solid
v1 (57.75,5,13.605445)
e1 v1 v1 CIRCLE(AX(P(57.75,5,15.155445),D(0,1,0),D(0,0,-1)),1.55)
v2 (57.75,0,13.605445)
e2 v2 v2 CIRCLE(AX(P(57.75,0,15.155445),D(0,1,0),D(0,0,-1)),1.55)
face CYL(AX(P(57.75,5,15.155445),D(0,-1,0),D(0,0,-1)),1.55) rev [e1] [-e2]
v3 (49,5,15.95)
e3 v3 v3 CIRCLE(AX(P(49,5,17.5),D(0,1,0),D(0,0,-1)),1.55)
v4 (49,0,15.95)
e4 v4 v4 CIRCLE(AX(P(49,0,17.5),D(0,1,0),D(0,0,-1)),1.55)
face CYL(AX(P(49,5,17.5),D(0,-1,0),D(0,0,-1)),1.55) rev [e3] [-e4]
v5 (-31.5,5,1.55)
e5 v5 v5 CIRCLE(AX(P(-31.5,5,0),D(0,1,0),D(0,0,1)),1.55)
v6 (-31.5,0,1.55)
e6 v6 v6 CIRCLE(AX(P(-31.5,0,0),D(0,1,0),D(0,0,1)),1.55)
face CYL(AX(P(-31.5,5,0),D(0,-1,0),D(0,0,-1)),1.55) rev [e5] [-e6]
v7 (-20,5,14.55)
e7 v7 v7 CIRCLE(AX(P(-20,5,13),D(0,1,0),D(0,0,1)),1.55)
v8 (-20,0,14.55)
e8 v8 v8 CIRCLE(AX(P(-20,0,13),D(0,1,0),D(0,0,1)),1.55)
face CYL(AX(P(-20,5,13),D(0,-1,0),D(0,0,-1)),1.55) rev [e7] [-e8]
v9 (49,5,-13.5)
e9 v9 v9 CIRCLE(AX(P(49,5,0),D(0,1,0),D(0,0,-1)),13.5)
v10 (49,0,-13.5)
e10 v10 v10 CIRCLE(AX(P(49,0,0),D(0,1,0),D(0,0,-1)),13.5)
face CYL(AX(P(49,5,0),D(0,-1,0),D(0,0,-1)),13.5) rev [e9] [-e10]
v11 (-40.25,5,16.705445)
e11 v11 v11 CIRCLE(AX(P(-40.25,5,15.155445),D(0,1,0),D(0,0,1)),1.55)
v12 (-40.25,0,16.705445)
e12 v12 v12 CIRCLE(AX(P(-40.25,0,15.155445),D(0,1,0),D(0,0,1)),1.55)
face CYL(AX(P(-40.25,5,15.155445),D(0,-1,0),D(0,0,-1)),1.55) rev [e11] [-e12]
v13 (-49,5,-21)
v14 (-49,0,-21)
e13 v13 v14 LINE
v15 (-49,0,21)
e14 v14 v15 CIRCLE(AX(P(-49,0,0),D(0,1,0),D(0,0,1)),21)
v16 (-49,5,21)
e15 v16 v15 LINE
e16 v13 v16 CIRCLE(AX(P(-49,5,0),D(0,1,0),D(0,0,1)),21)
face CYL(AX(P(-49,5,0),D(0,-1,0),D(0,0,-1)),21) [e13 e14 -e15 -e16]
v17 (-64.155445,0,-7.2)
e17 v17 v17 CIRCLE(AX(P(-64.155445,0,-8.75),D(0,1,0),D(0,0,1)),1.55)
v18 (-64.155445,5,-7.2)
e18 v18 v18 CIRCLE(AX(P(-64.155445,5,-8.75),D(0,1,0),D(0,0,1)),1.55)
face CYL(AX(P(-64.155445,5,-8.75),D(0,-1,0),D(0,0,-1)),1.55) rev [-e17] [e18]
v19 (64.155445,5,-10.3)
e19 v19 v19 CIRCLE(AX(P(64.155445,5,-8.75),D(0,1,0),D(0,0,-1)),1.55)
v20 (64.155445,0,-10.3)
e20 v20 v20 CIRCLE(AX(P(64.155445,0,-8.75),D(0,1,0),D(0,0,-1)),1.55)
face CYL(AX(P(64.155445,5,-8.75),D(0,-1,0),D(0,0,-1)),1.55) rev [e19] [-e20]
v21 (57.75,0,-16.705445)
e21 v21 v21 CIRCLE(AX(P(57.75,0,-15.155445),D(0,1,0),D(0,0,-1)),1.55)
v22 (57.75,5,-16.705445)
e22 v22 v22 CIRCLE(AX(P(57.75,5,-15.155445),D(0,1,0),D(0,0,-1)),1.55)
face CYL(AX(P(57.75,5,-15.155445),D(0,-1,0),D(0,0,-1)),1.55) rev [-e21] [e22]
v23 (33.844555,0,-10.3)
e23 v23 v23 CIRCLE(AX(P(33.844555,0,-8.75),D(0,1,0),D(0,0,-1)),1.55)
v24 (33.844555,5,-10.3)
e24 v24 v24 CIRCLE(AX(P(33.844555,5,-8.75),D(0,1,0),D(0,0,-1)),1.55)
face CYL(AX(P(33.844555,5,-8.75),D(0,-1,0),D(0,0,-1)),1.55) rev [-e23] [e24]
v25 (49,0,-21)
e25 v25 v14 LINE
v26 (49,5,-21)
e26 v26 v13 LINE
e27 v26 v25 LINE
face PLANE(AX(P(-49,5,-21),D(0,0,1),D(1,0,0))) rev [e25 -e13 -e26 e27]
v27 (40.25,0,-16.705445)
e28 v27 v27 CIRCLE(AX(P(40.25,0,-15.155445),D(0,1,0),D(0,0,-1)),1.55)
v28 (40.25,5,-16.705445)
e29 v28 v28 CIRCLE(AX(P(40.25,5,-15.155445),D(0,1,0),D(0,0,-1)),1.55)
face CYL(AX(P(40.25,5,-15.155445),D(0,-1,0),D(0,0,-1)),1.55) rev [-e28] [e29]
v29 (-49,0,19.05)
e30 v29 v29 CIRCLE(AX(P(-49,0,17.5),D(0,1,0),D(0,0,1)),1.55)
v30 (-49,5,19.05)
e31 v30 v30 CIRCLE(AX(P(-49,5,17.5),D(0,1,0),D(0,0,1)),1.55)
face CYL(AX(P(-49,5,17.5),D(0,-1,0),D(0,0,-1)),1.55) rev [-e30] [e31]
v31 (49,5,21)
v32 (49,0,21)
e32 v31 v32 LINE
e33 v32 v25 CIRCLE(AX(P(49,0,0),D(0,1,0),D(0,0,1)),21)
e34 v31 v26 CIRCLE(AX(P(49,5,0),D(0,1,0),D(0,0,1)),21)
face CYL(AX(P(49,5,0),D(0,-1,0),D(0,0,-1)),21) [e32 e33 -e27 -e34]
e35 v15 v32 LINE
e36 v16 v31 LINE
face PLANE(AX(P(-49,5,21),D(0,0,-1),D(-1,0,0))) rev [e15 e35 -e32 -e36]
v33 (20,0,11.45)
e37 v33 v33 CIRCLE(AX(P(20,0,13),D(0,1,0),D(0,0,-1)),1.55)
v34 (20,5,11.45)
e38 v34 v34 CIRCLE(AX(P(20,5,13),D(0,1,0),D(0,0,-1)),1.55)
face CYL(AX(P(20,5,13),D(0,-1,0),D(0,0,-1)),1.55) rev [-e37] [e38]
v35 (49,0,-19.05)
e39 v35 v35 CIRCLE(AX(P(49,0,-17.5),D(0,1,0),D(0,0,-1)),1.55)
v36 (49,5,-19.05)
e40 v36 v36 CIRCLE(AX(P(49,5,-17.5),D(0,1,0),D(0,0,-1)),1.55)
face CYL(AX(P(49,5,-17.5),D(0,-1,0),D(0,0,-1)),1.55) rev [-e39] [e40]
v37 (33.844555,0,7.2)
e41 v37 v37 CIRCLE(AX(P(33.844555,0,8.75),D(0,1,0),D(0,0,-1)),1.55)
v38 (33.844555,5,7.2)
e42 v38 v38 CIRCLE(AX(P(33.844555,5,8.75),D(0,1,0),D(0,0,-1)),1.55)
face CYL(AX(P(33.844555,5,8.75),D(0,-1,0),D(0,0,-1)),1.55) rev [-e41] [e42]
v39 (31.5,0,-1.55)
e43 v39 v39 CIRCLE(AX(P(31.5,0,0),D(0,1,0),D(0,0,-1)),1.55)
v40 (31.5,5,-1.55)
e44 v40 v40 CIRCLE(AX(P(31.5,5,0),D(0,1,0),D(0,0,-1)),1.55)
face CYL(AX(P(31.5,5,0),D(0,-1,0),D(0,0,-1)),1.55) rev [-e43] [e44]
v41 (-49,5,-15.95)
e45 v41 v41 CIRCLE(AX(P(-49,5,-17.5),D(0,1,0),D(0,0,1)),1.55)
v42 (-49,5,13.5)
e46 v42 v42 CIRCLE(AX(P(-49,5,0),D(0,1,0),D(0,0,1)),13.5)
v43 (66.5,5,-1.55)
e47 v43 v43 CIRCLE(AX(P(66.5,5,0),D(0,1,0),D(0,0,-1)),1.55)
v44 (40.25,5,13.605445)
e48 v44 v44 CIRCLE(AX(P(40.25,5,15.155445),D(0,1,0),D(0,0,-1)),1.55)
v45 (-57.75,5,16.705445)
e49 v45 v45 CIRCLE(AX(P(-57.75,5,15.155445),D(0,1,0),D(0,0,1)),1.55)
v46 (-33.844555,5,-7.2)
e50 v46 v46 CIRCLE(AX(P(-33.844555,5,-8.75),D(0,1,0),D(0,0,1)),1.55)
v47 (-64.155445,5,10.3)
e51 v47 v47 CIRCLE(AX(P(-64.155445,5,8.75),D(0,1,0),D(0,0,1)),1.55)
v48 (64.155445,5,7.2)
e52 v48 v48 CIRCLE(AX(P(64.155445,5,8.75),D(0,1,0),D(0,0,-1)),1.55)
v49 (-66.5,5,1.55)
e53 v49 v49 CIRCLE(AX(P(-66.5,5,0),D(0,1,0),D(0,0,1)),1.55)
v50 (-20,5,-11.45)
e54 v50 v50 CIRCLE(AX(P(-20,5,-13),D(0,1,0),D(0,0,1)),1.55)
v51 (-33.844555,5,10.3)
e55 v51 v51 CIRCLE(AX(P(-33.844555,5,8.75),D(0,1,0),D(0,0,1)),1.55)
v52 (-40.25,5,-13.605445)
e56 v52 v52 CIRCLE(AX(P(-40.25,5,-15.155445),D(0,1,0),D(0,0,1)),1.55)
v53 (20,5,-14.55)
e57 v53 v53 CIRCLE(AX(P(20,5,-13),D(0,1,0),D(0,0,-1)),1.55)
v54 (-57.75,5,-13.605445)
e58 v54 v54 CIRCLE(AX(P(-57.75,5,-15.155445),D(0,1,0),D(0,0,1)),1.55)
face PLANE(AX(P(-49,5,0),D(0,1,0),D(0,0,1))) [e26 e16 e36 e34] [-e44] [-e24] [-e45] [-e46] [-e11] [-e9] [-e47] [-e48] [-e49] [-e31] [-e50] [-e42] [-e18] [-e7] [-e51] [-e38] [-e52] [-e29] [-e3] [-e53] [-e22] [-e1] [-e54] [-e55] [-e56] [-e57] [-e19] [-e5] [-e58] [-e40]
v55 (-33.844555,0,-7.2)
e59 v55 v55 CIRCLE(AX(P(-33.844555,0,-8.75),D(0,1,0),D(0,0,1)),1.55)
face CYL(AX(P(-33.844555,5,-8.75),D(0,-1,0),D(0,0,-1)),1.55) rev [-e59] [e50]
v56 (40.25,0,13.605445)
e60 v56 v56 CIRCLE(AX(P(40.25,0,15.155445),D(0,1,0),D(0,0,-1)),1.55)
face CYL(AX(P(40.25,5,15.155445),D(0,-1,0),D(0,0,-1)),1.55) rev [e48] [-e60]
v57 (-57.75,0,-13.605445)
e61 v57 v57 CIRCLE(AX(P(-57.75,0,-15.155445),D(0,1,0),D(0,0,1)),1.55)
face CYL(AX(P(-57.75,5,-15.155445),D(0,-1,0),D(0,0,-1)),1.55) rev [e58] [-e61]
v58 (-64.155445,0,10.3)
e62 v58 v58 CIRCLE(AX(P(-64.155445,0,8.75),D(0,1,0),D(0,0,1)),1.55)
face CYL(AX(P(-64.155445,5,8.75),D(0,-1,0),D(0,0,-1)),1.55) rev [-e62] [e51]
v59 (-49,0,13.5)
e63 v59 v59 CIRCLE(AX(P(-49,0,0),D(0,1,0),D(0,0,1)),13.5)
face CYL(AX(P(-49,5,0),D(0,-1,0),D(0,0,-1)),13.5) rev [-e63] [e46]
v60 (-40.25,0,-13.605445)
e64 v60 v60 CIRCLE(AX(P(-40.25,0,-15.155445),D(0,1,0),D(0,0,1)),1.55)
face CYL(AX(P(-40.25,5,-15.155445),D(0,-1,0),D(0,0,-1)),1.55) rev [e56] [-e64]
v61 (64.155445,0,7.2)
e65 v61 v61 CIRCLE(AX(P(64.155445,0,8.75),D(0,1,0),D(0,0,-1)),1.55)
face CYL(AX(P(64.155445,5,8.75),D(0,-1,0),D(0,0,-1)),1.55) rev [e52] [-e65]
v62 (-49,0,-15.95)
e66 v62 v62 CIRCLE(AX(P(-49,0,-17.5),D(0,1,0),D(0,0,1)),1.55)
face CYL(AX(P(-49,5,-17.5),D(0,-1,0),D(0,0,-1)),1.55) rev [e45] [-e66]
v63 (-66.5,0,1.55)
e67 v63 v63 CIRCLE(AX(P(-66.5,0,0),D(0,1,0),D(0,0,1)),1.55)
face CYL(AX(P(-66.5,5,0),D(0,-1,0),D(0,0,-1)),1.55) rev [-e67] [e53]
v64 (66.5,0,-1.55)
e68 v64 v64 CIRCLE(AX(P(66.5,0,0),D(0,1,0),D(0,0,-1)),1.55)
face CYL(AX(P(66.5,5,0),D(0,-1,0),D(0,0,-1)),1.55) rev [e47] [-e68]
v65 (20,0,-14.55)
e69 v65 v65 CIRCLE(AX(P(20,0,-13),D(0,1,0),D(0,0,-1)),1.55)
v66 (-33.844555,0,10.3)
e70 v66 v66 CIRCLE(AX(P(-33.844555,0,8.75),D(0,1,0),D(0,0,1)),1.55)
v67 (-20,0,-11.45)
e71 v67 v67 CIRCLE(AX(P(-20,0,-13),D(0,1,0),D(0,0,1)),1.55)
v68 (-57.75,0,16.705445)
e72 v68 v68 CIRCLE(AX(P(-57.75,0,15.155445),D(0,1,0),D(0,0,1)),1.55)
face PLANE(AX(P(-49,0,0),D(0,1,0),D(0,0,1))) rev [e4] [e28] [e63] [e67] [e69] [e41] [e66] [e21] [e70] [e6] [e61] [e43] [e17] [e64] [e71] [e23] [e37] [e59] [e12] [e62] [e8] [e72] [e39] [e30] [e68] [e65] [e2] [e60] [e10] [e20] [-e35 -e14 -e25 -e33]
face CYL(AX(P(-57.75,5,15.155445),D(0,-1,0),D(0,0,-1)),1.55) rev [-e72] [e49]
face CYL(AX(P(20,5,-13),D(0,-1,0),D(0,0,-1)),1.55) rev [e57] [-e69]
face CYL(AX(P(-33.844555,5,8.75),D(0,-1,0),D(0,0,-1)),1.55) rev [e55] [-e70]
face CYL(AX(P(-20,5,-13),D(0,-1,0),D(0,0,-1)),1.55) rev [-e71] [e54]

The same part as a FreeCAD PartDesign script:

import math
import FreeCAD as App
import Part
import Sketcher

V = App.Vector

doc = App.newDocument("Part")
body = doc.addObject("PartDesign::Body", "Body")

sketch1 = body.newObject("Sketcher::SketchObject", "Sketch")
sketch1.AttachmentSupport = (doc.getObject("XZ_Plane"), [""])
sketch1.MapMode = "FlatFace"
sketch1.addGeometry([
    Part.LineSegment(V(49, -21, 0), V(-49, -21, 0)),
    Part.ArcOfCircle(Part.Circle(V(-49, 0, 0), V(0, 0, 1), 21), math.radians(90), math.radians(270)),
    Part.LineSegment(V(-49, 21, 0), V(49, 21, 0)),
    Part.ArcOfCircle(Part.Circle(V(49, 0, 0), V(0, 0, 1), 21), math.radians(-90), math.radians(90)),
    Part.Circle(V(57.75, 15.155445, 0), V(0, 0, 1), 1.55),
    Part.Circle(V(49, 17.5, 0), V(0, 0, 1), 1.55),
    Part.Circle(V(40.25, 15.155445, 0), V(0, 0, 1), 1.55),
    Part.Circle(V(20, 13, 0), V(0, 0, 1), 1.55),
    Part.Circle(V(64.155445, 8.75, 0), V(0, 0, 1), 1.55),
    Part.Circle(V(33.844555, 8.75, 0), V(0, 0, 1), 1.55),
    Part.Circle(V(-20, 13, 0), V(0, 0, 1), 1.55),
    Part.Circle(V(-49, 17.5, 0), V(0, 0, 1), 1.55),
    Part.Circle(V(-40.25, 15.155445, 0), V(0, 0, 1), 1.55),
    Part.Circle(V(-57.75, 15.155445, 0), V(0, 0, 1), 1.55),
    Part.Circle(V(-33.844555, 8.75, 0), V(0, 0, 1), 1.55),
    Part.Circle(V(-64.155445, 8.75, 0), V(0, 0, 1), 1.55),
    Part.Circle(V(66.5, 0, 0), V(0, 0, 1), 1.55),
    Part.Circle(V(49, 0, 0), V(0, 0, 1), 13.5),
    Part.Circle(V(64.155445, -8.75, 0), V(0, 0, 1), 1.55),
    Part.Circle(V(31.5, 0, 0), V(0, 0, 1), 1.55),
    Part.Circle(V(33.844555, -8.75, 0), V(0, 0, 1), 1.55),
    Part.Circle(V(57.75, -15.155445, 0), V(0, 0, 1), 1.55),
    Part.Circle(V(40.25, -15.155445, 0), V(0, 0, 1), 1.55),
    Part.Circle(V(49, -17.5, 0), V(0, 0, 1), 1.55),
    Part.Circle(V(20, -13, 0), V(0, 0, 1), 1.55),
    Part.Circle(V(-31.5, 0, 0), V(0, 0, 1), 1.55),
    Part.Circle(V(-33.844555, -8.75, 0), V(0, 0, 1), 1.55),
    Part.Circle(V(-49, 0, 0), V(0, 0, 1), 13.5),
    Part.Circle(V(-66.5, 0, 0), V(0, 0, 1), 1.55),
    Part.Circle(V(-64.155445, -8.75, 0), V(0, 0, 1), 1.55),
    Part.Circle(V(-20, -13, 0), V(0, 0, 1), 1.55),
    Part.Circle(V(-40.25, -15.155445, 0), V(0, 0, 1), 1.55),
    Part.Circle(V(-49, -17.5, 0), V(0, 0, 1), 1.55),
    Part.Circle(V(-57.75, -15.155445, 0), V(0, 0, 1), 1.55),
], False)
sketch1.addConstraint([
    Sketcher.Constraint("Tangent", 0, 2, 1, 2),
    Sketcher.Constraint("Tangent", 1, 1, 2, 1),
    Sketcher.Constraint("Tangent", 2, 2, 3, 2),
    Sketcher.Constraint("Tangent", 3, 1, 0, 1),
    Sketcher.Constraint("Horizontal", 0),
    Sketcher.Constraint("Horizontal", 2),
    Sketcher.Constraint("Coincident", 17, 3, 3, 3),
    Sketcher.Constraint("Coincident", 27, 3, 1, 3),
    Sketcher.Constraint("Equal", 4, 5),
    Sketcher.Constraint("Equal", 5, 6),
    Sketcher.Constraint("Equal", 6, 7),
    Sketcher.Constraint("Equal", 7, 8),
    Sketcher.Constraint("Equal", 8, 9),
    Sketcher.Constraint("Equal", 9, 10),
    Sketcher.Constraint("Equal", 10, 11),
    Sketcher.Constraint("Equal", 11, 12),
    Sketcher.Constraint("Equal", 12, 13),
    Sketcher.Constraint("Equal", 13, 14),
    Sketcher.Constraint("Equal", 14, 15),
    Sketcher.Constraint("Equal", 15, 16),
    Sketcher.Constraint("Equal", 16, 18),
    Sketcher.Constraint("Equal", 18, 19),
    Sketcher.Constraint("Equal", 19, 20),
    Sketcher.Constraint("Equal", 20, 21),
    Sketcher.Constraint("Equal", 21, 22),
    Sketcher.Constraint("Equal", 22, 23),
    Sketcher.Constraint("Equal", 23, 24),
    Sketcher.Constraint("Equal", 24, 25),
    Sketcher.Constraint("Equal", 25, 26),
    Sketcher.Constraint("Equal", 17, 27),
    Sketcher.Constraint("Equal", 26, 28),
    Sketcher.Constraint("Equal", 28, 29),
    Sketcher.Constraint("Equal", 29, 30),
    Sketcher.Constraint("Equal", 30, 31),
    Sketcher.Constraint("Equal", 31, 32),
    Sketcher.Constraint("Equal", 32, 33),
    Sketcher.Constraint("Symmetric", 1, 3, 3, 3, -1, 1),
    Sketcher.Constraint("Symmetric", 15, 3, 18, 3, -1, 1),
    Sketcher.Constraint("Symmetric", 14, 3, 20, 3, -1, 1),
    Sketcher.Constraint("Symmetric", 13, 3, 21, 3, -1, 1),
    Sketcher.Constraint("Symmetric", 12, 3, 22, 3, -1, 1),
    Sketcher.Constraint("Symmetric", 11, 3, 23, 3, -1, 1),
    Sketcher.Constraint("Symmetric", 10, 3, 24, 3, -1, 1),
    Sketcher.Constraint("Symmetric", 19, 3, 25, 3, -1, 1),
    Sketcher.Constraint("Symmetric", 9, 3, 26, 3, -1, 1),
    Sketcher.Constraint("Symmetric", 16, 3, 28, 3, -1, 1),
    Sketcher.Constraint("Symmetric", 8, 3, 29, 3, -1, 1),
    Sketcher.Constraint("Symmetric", 7, 3, 30, 3, -1, 1),
    Sketcher.Constraint("Symmetric", 6, 3, 31, 3, -1, 1),
    Sketcher.Constraint("Symmetric", 5, 3, 32, 3, -1, 1),
    Sketcher.Constraint("Symmetric", 4, 3, 33, 3, -1, 1),
    Sketcher.Constraint("Symmetric", 7, 3, 10, 3, -2),
    Sketcher.Constraint("Symmetric", 5, 3, 11, 3, -2),
    Sketcher.Constraint("Symmetric", 6, 3, 12, 3, -2),
    Sketcher.Constraint("Symmetric", 4, 3, 13, 3, -2),
    Sketcher.Constraint("Symmetric", 9, 3, 14, 3, -2),
    Sketcher.Constraint("Symmetric", 8, 3, 15, 3, -2),
    Sketcher.Constraint("PointOnObject", 16, 3, -1),
    Sketcher.Constraint("PointOnObject", 19, 3, -1),
    Sketcher.Constraint("Horizontal", 4, 3, 6, 3),
    Sketcher.Constraint("Horizontal", 8, 3, 9, 3),
    Sketcher.Constraint("Vertical", 3, 3, 5, 3),
    Sketcher.Constraint("Diameter", 17, 27.0),
    Sketcher.Constraint("Radius", 1, 21.0),
    Sketcher.Constraint("Diameter", 4, 3.1),
    Sketcher.Constraint("DistanceX", 0, 2, 0, 1, 98.0),
    Sketcher.Constraint("DistanceX", -1, 1, 7, 3, 20.0),
    Sketcher.Constraint("DistanceY", -1, 1, 7, 3, 13.0),
    Sketcher.Constraint("DistanceY", -1, 1, 5, 3, 17.5),
    Sketcher.Constraint("DistanceX", -1, 1, 16, 3, 66.5),
    Sketcher.Constraint("DistanceX", -1, 1, 19, 3, 31.5),
    Sketcher.Constraint("DistanceX", 6, 3, 4, 3, 17.5),
    Sketcher.Constraint("DistanceY", 18, 3, 8, 3, 17.5),
    Sketcher.Constraint("DistanceX", -1, 1, 4, 3, 57.75),
    Sketcher.Constraint("DistanceX", 15, 3, 14, 3, 30.310889),
    Sketcher.Constraint("DistanceY", -1, 1, 4, 3, 15.155445),
    Sketcher.Constraint("DistanceX", -1, 1, 8, 3, 64.155445),
])
pad1 = body.newObject("PartDesign::Pad", "Pad")
pad1.Profile = sketch1
pad1.Length = 5
pad1.Reversed = True

doc.recompute()
